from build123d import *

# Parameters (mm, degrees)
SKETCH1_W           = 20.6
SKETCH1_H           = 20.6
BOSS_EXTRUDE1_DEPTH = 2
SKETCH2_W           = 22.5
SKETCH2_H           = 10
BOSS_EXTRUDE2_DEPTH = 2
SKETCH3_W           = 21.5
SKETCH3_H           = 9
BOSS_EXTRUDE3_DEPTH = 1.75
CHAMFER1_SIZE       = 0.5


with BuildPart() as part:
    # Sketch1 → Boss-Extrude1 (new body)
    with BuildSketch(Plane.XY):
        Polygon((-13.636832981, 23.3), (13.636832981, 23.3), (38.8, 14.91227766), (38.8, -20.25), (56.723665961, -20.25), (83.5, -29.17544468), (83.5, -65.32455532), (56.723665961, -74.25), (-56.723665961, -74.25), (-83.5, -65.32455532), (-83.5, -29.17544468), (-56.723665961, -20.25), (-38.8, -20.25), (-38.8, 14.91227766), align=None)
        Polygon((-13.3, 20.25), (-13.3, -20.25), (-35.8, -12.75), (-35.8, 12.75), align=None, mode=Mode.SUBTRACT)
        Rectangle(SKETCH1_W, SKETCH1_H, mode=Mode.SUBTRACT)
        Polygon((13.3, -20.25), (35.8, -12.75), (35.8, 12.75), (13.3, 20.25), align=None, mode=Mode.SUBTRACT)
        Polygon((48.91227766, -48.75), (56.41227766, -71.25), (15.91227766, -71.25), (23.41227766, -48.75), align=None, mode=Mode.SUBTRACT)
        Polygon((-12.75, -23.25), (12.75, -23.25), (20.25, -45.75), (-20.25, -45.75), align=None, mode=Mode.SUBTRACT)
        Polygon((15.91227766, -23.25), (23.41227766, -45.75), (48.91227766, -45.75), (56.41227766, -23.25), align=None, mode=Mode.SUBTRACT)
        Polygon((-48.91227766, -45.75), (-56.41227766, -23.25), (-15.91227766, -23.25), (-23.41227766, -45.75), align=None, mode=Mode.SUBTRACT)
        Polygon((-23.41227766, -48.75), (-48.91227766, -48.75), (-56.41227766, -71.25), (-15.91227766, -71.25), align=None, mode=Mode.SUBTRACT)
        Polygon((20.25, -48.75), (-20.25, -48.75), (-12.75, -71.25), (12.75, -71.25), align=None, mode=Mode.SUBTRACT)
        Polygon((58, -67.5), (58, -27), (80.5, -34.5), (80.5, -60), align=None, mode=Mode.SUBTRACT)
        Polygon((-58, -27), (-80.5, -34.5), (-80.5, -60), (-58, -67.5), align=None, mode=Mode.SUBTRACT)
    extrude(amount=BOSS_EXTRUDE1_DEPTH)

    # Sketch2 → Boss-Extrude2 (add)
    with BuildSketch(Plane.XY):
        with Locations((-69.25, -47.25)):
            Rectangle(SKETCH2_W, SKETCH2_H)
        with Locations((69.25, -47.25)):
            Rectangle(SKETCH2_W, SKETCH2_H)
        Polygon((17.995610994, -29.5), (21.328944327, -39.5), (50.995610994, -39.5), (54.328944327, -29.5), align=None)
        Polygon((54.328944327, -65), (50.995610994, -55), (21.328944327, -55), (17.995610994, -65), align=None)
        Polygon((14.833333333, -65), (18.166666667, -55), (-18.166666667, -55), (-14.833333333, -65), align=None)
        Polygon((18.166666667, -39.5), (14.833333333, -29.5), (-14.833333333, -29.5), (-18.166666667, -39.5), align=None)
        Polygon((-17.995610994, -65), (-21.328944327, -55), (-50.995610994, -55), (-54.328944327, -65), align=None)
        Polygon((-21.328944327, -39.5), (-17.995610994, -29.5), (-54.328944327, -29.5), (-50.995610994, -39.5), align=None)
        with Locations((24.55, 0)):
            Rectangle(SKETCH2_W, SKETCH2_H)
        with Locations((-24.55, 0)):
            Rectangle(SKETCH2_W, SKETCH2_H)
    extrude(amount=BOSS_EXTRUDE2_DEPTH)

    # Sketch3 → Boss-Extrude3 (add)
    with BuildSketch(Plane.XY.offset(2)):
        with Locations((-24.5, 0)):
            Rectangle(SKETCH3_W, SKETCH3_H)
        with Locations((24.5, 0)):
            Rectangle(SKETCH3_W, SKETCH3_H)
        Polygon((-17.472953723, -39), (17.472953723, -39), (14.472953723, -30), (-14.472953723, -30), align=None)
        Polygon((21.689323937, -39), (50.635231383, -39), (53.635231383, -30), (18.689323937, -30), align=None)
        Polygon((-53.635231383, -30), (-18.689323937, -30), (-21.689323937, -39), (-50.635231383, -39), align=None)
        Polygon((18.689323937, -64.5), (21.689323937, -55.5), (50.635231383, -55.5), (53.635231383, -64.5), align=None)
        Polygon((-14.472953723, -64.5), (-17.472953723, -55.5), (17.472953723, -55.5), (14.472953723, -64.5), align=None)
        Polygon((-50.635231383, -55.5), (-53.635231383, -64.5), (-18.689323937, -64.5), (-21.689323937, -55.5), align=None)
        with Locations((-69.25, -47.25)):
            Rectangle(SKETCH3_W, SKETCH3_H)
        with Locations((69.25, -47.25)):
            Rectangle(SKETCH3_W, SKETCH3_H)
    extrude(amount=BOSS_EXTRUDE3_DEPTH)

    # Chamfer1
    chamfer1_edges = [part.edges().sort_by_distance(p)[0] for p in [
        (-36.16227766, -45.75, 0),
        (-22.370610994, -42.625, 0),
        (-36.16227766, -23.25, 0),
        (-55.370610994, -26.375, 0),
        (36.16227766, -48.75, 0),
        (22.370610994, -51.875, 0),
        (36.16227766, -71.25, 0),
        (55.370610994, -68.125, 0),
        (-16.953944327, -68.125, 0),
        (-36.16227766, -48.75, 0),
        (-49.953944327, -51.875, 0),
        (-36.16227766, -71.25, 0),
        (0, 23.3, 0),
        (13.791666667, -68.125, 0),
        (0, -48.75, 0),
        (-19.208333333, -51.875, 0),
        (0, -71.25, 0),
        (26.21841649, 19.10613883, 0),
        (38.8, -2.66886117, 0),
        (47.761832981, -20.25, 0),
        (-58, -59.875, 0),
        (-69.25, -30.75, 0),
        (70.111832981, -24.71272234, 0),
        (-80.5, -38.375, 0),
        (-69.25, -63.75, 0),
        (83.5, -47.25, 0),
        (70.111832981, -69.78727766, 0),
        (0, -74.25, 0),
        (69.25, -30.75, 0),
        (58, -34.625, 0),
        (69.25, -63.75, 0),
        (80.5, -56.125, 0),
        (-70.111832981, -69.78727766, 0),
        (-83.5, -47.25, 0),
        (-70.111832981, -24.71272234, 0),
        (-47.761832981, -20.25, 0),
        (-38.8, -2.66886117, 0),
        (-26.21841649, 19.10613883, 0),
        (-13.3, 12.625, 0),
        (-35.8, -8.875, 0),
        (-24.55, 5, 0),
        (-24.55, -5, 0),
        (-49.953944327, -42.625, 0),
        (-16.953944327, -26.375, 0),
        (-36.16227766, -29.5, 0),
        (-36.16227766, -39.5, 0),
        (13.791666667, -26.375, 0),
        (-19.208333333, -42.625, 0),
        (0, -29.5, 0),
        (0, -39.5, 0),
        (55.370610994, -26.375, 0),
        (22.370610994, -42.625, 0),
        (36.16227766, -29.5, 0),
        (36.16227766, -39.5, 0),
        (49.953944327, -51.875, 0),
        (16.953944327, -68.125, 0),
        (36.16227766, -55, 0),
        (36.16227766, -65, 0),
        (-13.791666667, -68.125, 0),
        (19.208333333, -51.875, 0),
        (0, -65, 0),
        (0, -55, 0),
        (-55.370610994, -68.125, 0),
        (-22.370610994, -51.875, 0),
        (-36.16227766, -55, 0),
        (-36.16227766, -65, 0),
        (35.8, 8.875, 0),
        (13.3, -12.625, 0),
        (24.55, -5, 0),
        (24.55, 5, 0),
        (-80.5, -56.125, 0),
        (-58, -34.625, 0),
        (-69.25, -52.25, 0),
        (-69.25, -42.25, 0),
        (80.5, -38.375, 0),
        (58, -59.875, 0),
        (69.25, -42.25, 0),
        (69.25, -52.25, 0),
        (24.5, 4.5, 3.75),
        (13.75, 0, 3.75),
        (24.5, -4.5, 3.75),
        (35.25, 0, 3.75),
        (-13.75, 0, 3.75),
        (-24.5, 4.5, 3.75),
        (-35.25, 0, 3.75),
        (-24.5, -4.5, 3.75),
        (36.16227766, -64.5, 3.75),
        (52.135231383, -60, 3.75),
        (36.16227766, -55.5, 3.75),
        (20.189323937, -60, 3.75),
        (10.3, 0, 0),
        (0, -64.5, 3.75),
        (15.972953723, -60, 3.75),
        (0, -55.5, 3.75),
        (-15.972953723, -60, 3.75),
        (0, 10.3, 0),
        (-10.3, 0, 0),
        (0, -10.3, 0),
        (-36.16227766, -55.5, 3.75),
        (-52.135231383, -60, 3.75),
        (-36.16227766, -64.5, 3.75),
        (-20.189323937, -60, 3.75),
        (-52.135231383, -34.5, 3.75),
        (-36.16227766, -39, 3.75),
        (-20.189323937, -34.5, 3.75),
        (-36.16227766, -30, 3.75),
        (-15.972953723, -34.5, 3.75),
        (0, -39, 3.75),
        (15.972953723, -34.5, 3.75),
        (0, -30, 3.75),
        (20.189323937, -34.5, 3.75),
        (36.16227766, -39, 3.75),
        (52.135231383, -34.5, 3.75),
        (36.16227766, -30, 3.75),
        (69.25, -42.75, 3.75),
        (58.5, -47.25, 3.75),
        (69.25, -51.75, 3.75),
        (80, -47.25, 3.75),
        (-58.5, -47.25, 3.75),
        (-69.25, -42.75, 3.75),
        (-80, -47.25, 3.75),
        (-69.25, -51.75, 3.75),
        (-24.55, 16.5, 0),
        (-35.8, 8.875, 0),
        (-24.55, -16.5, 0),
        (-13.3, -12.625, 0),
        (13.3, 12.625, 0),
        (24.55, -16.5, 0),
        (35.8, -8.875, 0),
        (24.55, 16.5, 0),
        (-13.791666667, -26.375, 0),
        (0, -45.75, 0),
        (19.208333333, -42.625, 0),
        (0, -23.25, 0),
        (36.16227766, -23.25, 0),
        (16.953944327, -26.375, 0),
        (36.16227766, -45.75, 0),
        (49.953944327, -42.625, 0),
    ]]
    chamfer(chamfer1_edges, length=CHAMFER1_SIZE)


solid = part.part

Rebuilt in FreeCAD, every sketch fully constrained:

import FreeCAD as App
import Part
import Sketcher

V = App.Vector


def edges_at(feature, points):
    """Names of the edges that pass closest to the given points."""
    edges = feature.Shape.Edges
    near = lambda p: min(range(len(edges)), key=lambda i: edges[i].distToShape(Part.Vertex(*p))[0])
    return sorted({f"Edge{near(p) + 1}" for p in points})

doc = App.newDocument("Part")
params = doc.addObject("Spreadsheet::Sheet", "Params")
for row, (alias, value) in enumerate([
    ("sketch1_width", "40.5 mm"),
    ("sketch1_width2", "25.5 mm"),
    ("sketch1_width3", "20.6 mm"),
    ("pad1_length", "2 mm"),
    ("sketch2_height", "10 mm"),
    ("sketch2_width", "22.5 mm"),
    ("pad2_length", "2 mm"),
    ("sketch3_height", "9 mm"),
    ("sketch3_width", "21.5 mm"),
    ("pad3_length", "1.75 mm"),
    ("chamfer_size", "0.5 mm"),
], start=1):
    params.set(f"A{row}", alias)
    params.set(f"B{row}", "=" + value)
    params.setAlias(f"B{row}", alias)

body = doc.addObject("PartDesign::Body", "Body")

sketch1 = doc.addObject("Sketcher::SketchObject", "Sketch")
body.addObject(sketch1)
sketch1.AttachmentSupport = (doc.XY_Plane, [""])
sketch1.MapMode = "FlatFace"
sketch1.addGeometry(Part.LineSegment(V(14, 23, 0), V(-14, 23, 0)), False)
sketch1.addGeometry(Part.LineSegment(V(-14, 23, 0), V(-39, 15, 0)), False)
sketch1.addGeometry(Part.LineSegment(V(-39, 15, 0), V(-39, -20, 0)), False)
sketch1.addGeometry(Part.LineSegment(V(-39, -20, 0), V(-57, -20, 0)), False)
sketch1.addGeometry(Part.LineSegment(V(-57, -20, 0), V(-84, -29, 0)), False)
sketch1.addGeometry(Part.LineSegment(V(-84, -29, 0), V(-84, -65, 0)), False)
sketch1.addGeometry(Part.LineSegment(V(-84, -65, 0), V(-57, -74, 0)), False)
sketch1.addGeometry(Part.LineSegment(V(-57, -74, 0), V(57, -74, 0)), False)
sketch1.addGeometry(Part.LineSegment(V(57, -74, 0), V(84, -65, 0)), False)
sketch1.addGeometry(Part.LineSegment(V(84, -65, 0), V(84, -29, 0)), False)
sketch1.addGeometry(Part.LineSegment(V(84, -29, 0), V(57, -20, 0)), False)
sketch1.addGeometry(Part.LineSegment(V(57, -20, 0), V(39, -20, 0)), False)
sketch1.addGeometry(Part.LineSegment(V(39, -20, 0), V(39, 15, 0)), False)
sketch1.addGeometry(Part.LineSegment(V(39, 15, 0), V(14, 23, 0)), False)
sketch1.addGeometry(Part.LineSegment(V(49, -49, 0), V(56, -71, 0)), False)
sketch1.addGeometry(Part.LineSegment(V(56, -71, 0), V(16, -71, 0)), False)
sketch1.addGeometry(Part.LineSegment(V(16, -71, 0), V(23, -49, 0)), False)
sketch1.addGeometry(Part.LineSegment(V(23, -49, 0), V(49, -49, 0)), False)
sketch1.addGeometry(Part.LineSegment(V(20, -49, 0), V(13, -71, 0)), False)
sketch1.addGeometry(Part.LineSegment(V(13, -71, 0), V(-13, -71, 0)), False)
sketch1.addGeometry(Part.LineSegment(V(-13, -71, 0), V(-20, -49, 0)), False)
sketch1.addGeometry(Part.LineSegment(V(-20, -49, 0), V(20, -49, 0)), False)
sketch1.addGeometry(Part.LineSegment(V(58, -68, 0), V(58, -27, 0)), False)
sketch1.addGeometry(Part.LineSegment(V(58, -27, 0), V(80, -34, 0)), False)
sketch1.addGeometry(Part.LineSegment(V(80, -34, 0), V(80, -60, 0)), False)
sketch1.addGeometry(Part.LineSegment(V(80, -60, 0), V(58, -68, 0)), False)
sketch1.addGeometry(Part.LineSegment(V(16, -23, 0), V(56, -23, 0)), False)
sketch1.addGeometry(Part.LineSegment(V(56, -23, 0), V(49, -46, 0)), False)
sketch1.addGeometry(Part.LineSegment(V(49, -46, 0), V(23, -46, 0)), False)
sketch1.addGeometry(Part.LineSegment(V(23, -46, 0), V(16, -23, 0)), False)
sketch1.addGeometry(Part.LineSegment(V(-13, -23, 0), V(13, -23, 0)), False)
sketch1.addGeometry(Part.LineSegment(V(13, -23, 0), V(20, -46, 0)), False)
sketch1.addGeometry(Part.LineSegment(V(20, -46, 0), V(-20, -46, 0)), False)
sketch1.addGeometry(Part.LineSegment(V(-20, -46, 0), V(-13, -23, 0)), False)
sketch1.addGeometry(Part.LineSegment(V(-23, -49, 0), V(-16, -71, 0)), False)
sketch1.addGeometry(Part.LineSegment(V(-16, -71, 0), V(-56, -71, 0)), False)
sketch1.addGeometry(Part.LineSegment(V(-56, -71, 0), V(-49, -49, 0)), False)
sketch1.addGeometry(Part.LineSegment(V(-49, -49, 0), V(-23, -49, 0)), False)
sketch1.addGeometry(Part.LineSegment(V(-49, -46, 0), V(-56, -23, 0)), False)
sketch1.addGeometry(Part.LineSegment(V(-56, -23, 0), V(-16, -23, 0)), False)
sketch1.addGeometry(Part.LineSegment(V(-16, -23, 0), V(-23, -46, 0)), False)
sketch1.addGeometry(Part.LineSegment(V(-23, -46, 0), V(-49, -46, 0)), False)
sketch1.addGeometry(Part.LineSegment(V(-58, -27, 0), V(-58, -68, 0)), False)
sketch1.addGeometry(Part.LineSegment(V(-58, -68, 0), V(-80, -60, 0)), False)
sketch1.addGeometry(Part.LineSegment(V(-80, -60, 0), V(-80, -34, 0)), False)
sketch1.addGeometry(Part.LineSegment(V(-80, -34, 0), V(-58, -27, 0)), False)
sketch1.addGeometry(Part.LineSegment(V(13, -20, 0), V(13, 20, 0)), False)
sketch1.addGeometry(Part.LineSegment(V(13, 20, 0), V(36, 13, 0)), False)
sketch1.addGeometry(Part.LineSegment(V(36, 13, 0), V(36, -13, 0)), False)
sketch1.addGeometry(Part.LineSegment(V(36, -13, 0), V(13, -20, 0)), False)
sketch1.addGeometry(Part.LineSegment(V(-10, -10, 0), V(-10, 10, 0)), False)
sketch1.addGeometry(Part.LineSegment(V(-10, 10, 0), V(10, 10, 0)), False)
sketch1.addGeometry(Part.LineSegment(V(10, 10, 0), V(10, -10, 0)), False)
sketch1.addGeometry(Part.LineSegment(V(10, -10, 0), V(-10, -10, 0)), False)
sketch1.addGeometry(Part.LineSegment(V(-13, 20, 0), V(-13, -20, 0)), False)
sketch1.addGeometry(Part.LineSegment(V(-13, -20, 0), V(-36, -13, 0)), False)
sketch1.addGeometry(Part.LineSegment(V(-36, -13, 0), V(-36, 13, 0)), False)
sketch1.addGeometry(Part.LineSegment(V(-36, 13, 0), V(-13, 20, 0)), False)
sketch1.addConstraint(Sketcher.Constraint("Coincident", 0, 2, 1, 1))
sketch1.addConstraint(Sketcher.Constraint("Coincident", 1, 2, 2, 1))
sketch1.addConstraint(Sketcher.Constraint("Coincident", 2, 2, 3, 1))
sketch1.addConstraint(Sketcher.Constraint("Coincident", 3, 2, 4, 1))
sketch1.addConstraint(Sketcher.Constraint("Coincident", 4, 2, 5, 1))
sketch1.addConstraint(Sketcher.Constraint("Coincident", 5, 2, 6, 1))
sketch1.addConstraint(Sketcher.Constraint("Coincident", 6, 2, 7, 1))
sketch1.addConstraint(Sketcher.Constraint("Coincident", 7, 2, 8, 1))
sketch1.addConstraint(Sketcher.Constraint("Coincident", 8, 2, 9, 1))
sketch1.addConstraint(Sketcher.Constraint("Coincident", 9, 2, 10, 1))
sketch1.addConstraint(Sketcher.Constraint("Coincident", 10, 2, 11, 1))
sketch1.addConstraint(Sketcher.Constraint("Coincident", 11, 2, 12, 1))
sketch1.addConstraint(Sketcher.Constraint("Coincident", 12, 2, 13, 1))
sketch1.addConstraint(Sketcher.Constraint("Coincident", 13, 2, 0, 1))
sketch1.addConstraint(Sketcher.Constraint("Coincident", 14, 2, 15, 1))
sketch1.addConstraint(Sketcher.Constraint("Coincident", 15, 2, 16, 1))
sketch1.addConstraint(Sketcher.Constraint("Coincident", 16, 2, 17, 1))
sketch1.addConstraint(Sketcher.Constraint("Coincident", 17, 2, 14, 1))
sketch1.addConstraint(Sketcher.Constraint("Coincident", 18, 2, 19, 1))
sketch1.addConstraint(Sketcher.Constraint("Coincident", 19, 2, 20, 1))
sketch1.addConstraint(Sketcher.Constraint("Coincident", 20, 2, 21, 1))
sketch1.addConstraint(Sketcher.Constraint("Coincident", 21, 2, 18, 1))
sketch1.addConstraint(Sketcher.Constraint("Coincident", 22, 2, 23, 1))
sketch1.addConstraint(Sketcher.Constraint("Coincident", 23, 2, 24, 1))
sketch1.addConstraint(Sketcher.Constraint("Coincident", 24, 2, 25, 1))
sketch1.addConstraint(Sketcher.Constraint("Coincident", 25, 2, 22, 1))
sketch1.addConstraint(Sketcher.Constraint("Coincident", 26, 2, 27, 1))
sketch1.addConstraint(Sketcher.Constraint("Coincident", 27, 2, 28, 1))
sketch1.addConstraint(Sketcher.Constraint("Coincident", 28, 2, 29, 1))
sketch1.addConstraint(Sketcher.Constraint("Coincident", 29, 2, 26, 1))
sketch1.addConstraint(Sketcher.Constraint("Coincident", 30, 2, 31, 1))
sketch1.addConstraint(Sketcher.Constraint("Coincident", 31, 2, 32, 1))
sketch1.addConstraint(Sketcher.Constraint("Coincident", 32, 2, 33, 1))
sketch1.addConstraint(Sketcher.Constraint("Coincident", 33, 2, 30, 1))
sketch1.addConstraint(Sketcher.Constraint("Coincident", 34, 2, 35, 1))
sketch1.addConstraint(Sketcher.Constraint("Coincident", 35, 2, 36, 1))
sketch1.addConstraint(Sketcher.Constraint("Coincident", 36, 2, 37, 1))
sketch1.addConstraint(Sketcher.Constraint("Coincident", 37, 2, 34, 1))
sketch1.addConstraint(Sketcher.Constraint("Coincident", 38, 2, 39, 1))
sketch1.addConstraint(Sketcher.Constraint("Coincident", 39, 2, 40, 1))
sketch1.addConstraint(Sketcher.Constraint("Coincident", 40, 2, 41, 1))
sketch1.addConstraint(Sketcher.Constraint("Coincident", 41, 2, 38, 1))
sketch1.addConstraint(Sketcher.Constraint("Coincident", 42, 2, 43, 1))
sketch1.addConstraint(Sketcher.Constraint("Coincident", 43, 2, 44, 1))
sketch1.addConstraint(Sketcher.Constraint("Coincident", 44, 2, 45, 1))
sketch1.addConstraint(Sketcher.Constraint("Coincident", 45, 2, 42, 1))
sketch1.addConstraint(Sketcher.Constraint("Coincident", 46, 2, 47, 1))
sketch1.addConstraint(Sketcher.Constraint("Coincident", 47, 2, 48, 1))
sketch1.addConstraint(Sketcher.Constraint("Coincident", 48, 2, 49, 1))
sketch1.addConstraint(Sketcher.Constraint("Coincident", 49, 2, 46, 1))
sketch1.addConstraint(Sketcher.Constraint("Coincident", 50, 2, 51, 1))
sketch1.addConstraint(Sketcher.Constraint("Coincident", 51, 2, 52, 1))
sketch1.addConstraint(Sketcher.Constraint("Coincident", 52, 2, 53, 1))
sketch1.addConstraint(Sketcher.Constraint("Coincident", 53, 2, 50, 1))
sketch1.addConstraint(Sketcher.Constraint("Coincident", 54, 2, 55, 1))
sketch1.addConstraint(Sketcher.Constraint("Coincident", 55, 2, 56, 1))
sketch1.addConstraint(Sketcher.Constraint("Coincident", 56, 2, 57, 1))
sketch1.addConstraint(Sketcher.Constraint("Coincident", 57, 2, 54, 1))
sketch1.addConstraint(Sketcher.Constraint("Horizontal", 0))
sketch1.addConstraint(Sketcher.Constraint("Vertical", 2))
sketch1.addConstraint(Sketcher.Constraint("Horizontal", 3))
sketch1.addConstraint(Sketcher.Constraint("Vertical", 5))
sketch1.addConstraint(Sketcher.Constraint("Horizontal", 7))
sketch1.addConstraint(Sketcher.Constraint("Vertical", 9))
sketch1.addConstraint(Sketcher.Constraint("Horizontal", 11))
sketch1.addConstraint(Sketcher.Constraint("Vertical", 12))
sketch1.addConstraint(Sketcher.Constraint("Horizontal", 15))
sketch1.addConstraint(Sketcher.Constraint("Horizontal", 17))
sketch1.addConstraint(Sketcher.Constraint("Horizontal", 19))
sketch1.addConstraint(Sketcher.Constraint("Horizontal", 21))
sketch1.addConstraint(Sketcher.Constraint("Vertical", 22))
sketch1.addConstraint(Sketcher.Constraint("Vertical", 24))
sketch1.addConstraint(Sketcher.Constraint("Horizontal", 26))
sketch1.addConstraint(Sketcher.Constraint("Horizontal", 28))
sketch1.addConstraint(Sketcher.Constraint("Horizontal", 30))
sketch1.addConstraint(Sketcher.Constraint("Horizontal", 32))
sketch1.addConstraint(Sketcher.Constraint("Horizontal", 35))
sketch1.addConstraint(Sketcher.Constraint("Horizontal", 37))
sketch1.addConstraint(Sketcher.Constraint("Horizontal", 39))
sketch1.addConstraint(Sketcher.Constraint("Horizontal", 41))
sketch1.addConstraint(Sketcher.Constraint("Vertical", 42))
sketch1.addConstraint(Sketcher.Constraint("Vertical", 44))
sketch1.addConstraint(Sketcher.Constraint("Vertical", 46))
sketch1.addConstraint(Sketcher.Constraint("Vertical", 48))
sketch1.addConstraint(Sketcher.Constraint("Vertical", 50))
sketch1.addConstraint(Sketcher.Constraint("Horizontal", 51))
sketch1.addConstraint(Sketcher.Constraint("Vertical", 52))
sketch1.addConstraint(Sketcher.Constraint("Horizontal", 53))
sketch1.addConstraint(Sketcher.Constraint("Vertical", 54))
sketch1.addConstraint(Sketcher.Constraint("Vertical", 56))
sketch1.addConstraint(Sketcher.Constraint("Symmetric", 50, 2, 52, 2, -1, 1))
sketch1.addConstraint(Sketcher.Constraint("Symmetric", 46, 2, 54, 2, -1, 1))
sketch1.addConstraint(Sketcher.Constraint("Symmetric", 47, 2, 55, 2, -1, 1))
sketch1.addConstraint(Sketcher.Constraint("Symmetric", 5, 2, 8, 2, -2))
sketch1.addConstraint(Sketcher.Constraint("Symmetric", 3, 2, 10, 2, -2))
sketch1.addConstraint(Sketcher.Constraint("Symmetric", 1, 2, 12, 2, -2))
sketch1.addConstraint(Sketcher.Constraint("Symmetric", 15, 2, 34, 2, -2))
sketch1.addConstraint(Sketcher.Constraint("Symmetric", 17, 2, 36, 2, -2))
sketch1.addConstraint(Sketcher.Constraint("Symmetric", 26, 2, 38, 2, -2))
sketch1.addConstraint(Sketcher.Constraint("Symmetric", 28, 2, 40, 2, -2))
sketch1.addConstraint(Sketcher.Constraint("Symmetric", 25, 2, 42, 2, -2))
sketch1.addConstraint(Sketcher.Constraint("Symmetric", 24, 2, 43, 2, -2))
sketch1.addConstraint(Sketcher.Constraint("Parallel", 1, 4))
sketch1.addConstraint(Sketcher.Constraint("Parallel", 4, 8))
sketch1.addConstraint(Sketcher.Constraint("Parallel", 6, 10))
sketch1.addConstraint(Sketcher.Constraint("Parallel", 10, 13))
sketch1.addConstraint(Sketcher.Constraint("Perpendicular", 8, 14))
sketch1.addConstraint(Sketcher.Constraint("Perpendicular", 13, 16))
sketch1.addConstraint(Sketcher.Constraint("Parallel", 16, 18))
sketch1.addConstraint(Sketcher.Constraint("Parallel", 14, 20))
sketch1.addConstraint(Sketcher.Constraint("Perpendicular", 18, 23))
sketch1.addConstraint(Sketcher.Constraint("Perpendicular", 20, 25))
sketch1.addConstraint(Sketcher.Constraint("Perpendicular", 23, 27))
sketch1.addConstraint(Sketcher.Constraint("Perpendicular", 25, 29))
sketch1.addConstraint(Sketcher.Constraint("Parallel", 29, 31))
sketch1.addConstraint(Sketcher.Constraint("Parallel", 27, 33))
sketch1.addConstraint(Sketcher.Constraint("Parallel", 31, 34))
sketch1.addConstraint(Sketcher.Constraint("Parallel", 33, 36))
sketch1.addConstraint(Sketcher.Constraint("Parallel", 34, 38))
sketch1.addConstraint(Sketcher.Constraint("Parallel", 36, 40))
sketch1.addConstraint(Sketcher.Constraint("Perpendicular", 40, 43))
sketch1.addConstraint(Sketcher.Constraint("Perpendicular", 38, 45))
sketch1.addConstraint(Sketcher.Constraint("Parallel", 43, 47))
sketch1.addConstraint(Sketcher.Constraint("Parallel", 45, 49))
sketch1.addConstraint(Sketcher.Constraint("Parallel", 49, 57))
sketch1.addConstraint(Sketcher.Constraint("Horizontal", 15, 2, 18, 2))
sketch1.addConstraint(Sketcher.Constraint("Horizontal", 17, 2, 20, 2))
sketch1.addConstraint(Sketcher.Constraint("Horizontal", 29, 2, 30, 2))
sketch1.addConstraint(Sketcher.Constraint("Horizontal", 28, 2, 31, 2))
sketch1.addConstraint(Sketcher.Constraint("Horizontal", 23, 2, 44, 2))
sketch1.addConstraint(Sketcher.Constraint("Horizontal", 11, 2, 49, 2))
sketch1.addConstraint(Sketcher.Constraint("Horizontal", 49, 2, 54, 2))
sketch1.addConstraint(Sketcher.Constraint("Horizontal", 47, 2, 56, 2))
sketch1.addConstraint(Sketcher.Constraint("Vertical", 3, 2, 6, 2))
sketch1.addConstraint(Sketcher.Constraint("Vertical", 14, 2, 26, 2))
sketch1.addConstraint(Sketcher.Constraint("Vertical", 17, 2, 27, 2))
sketch1.addConstraint(Sketcher.Constraint("Vertical", 16, 2, 28, 2))
sketch1.addConstraint(Sketcher.Constraint("Vertical", 18, 2, 30, 2))
sketch1.addConstraint(Sketcher.Constraint("Vertical", 20, 2, 32, 2))
sketch1.addConstraint(Sketcher.Constraint("Equal", 17, 19))
sketch1.addConstraint(Sketcher.Constraint("Equal", 39, 22))
sketch1.addConstraint(Sketcher.Constraint("Equal", 41, 24))
sketch1.addConstraint(Sketcher.Constraint("Equal", 42, 46))
sketch1.addConstraint(Sketcher.Constraint("Equal", 44, 48))
sketch1.addConstraint(Sketcher.Constraint("Equal", 53, 50))
sketch1.addConstraint(Sketcher.Constraint("DistanceX", 15, 2, 15, 1, 40.5))
sketch1.addConstraint(Sketcher.Constraint("DistanceX", 17, 1, 17, 2, 25.5))
sketch1.addConstraint(Sketcher.Constraint("DistanceX", 51, 1, 51, 2, 20.6))
sketch1.addConstraint(Sketcher.Constraint("DistanceX", -1, 1, 22, 2, 58.0))
sketch1.addConstraint(Sketcher.Constraint("DistanceY", 22, 2, -1, 1, 27.0))
sketch1.addConstraint(Sketcher.Constraint("DistanceY", 6, 2, 3, 2, 54.0))
sketch1.addConstraint(Sketcher.Constraint("DistanceY", 7, 2, 14, 2, 3.0))
sketch1.addConstraint(Sketcher.Constraint("DistanceX", 23, 2, 9, 2, 3.0))
sketch1.addConstraint(Sketcher.Constraint("DistanceY", 26, 2, 10, 2, 3.0))
sketch1.addConstraint(Sketcher.Constraint("DistanceY", 17, 2, 27, 2, 3.0))
sketch1.addConstraint(Sketcher.Constraint("DistanceX", 47, 2, 12, 2, 3.0))
sketch1.addConstraint(Sketcher.Constraint("DistanceY", 50, 2, 0, 2, 13.0))
sketch1.addConstraint(Sketcher.Constraint("DistanceX", 51, 2, 46, 2, 3.0))
sketch1.addConstraint(Sketcher.Constraint("DistanceX", -1, 1, 18, 2, 12.75))
sketch1.addConstraint(Sketcher.Constraint("DistanceX", 7, 1, 7, 2, 113.447332))
sketch1.addConstraint(Sketcher.Constraint("DistanceX", 0, 2, 7, 2, 70.360499))
sketch1.addConstraint(Sketcher.Constraint("DistanceX", 14, 2, 7, 2, 0.311388))
sketch1.setExpression("Constraints[145]", "Params.sketch1_width")
sketch1.setExpression("Constraints[146]", "Params.sketch1_width2")
sketch1.setExpression("Constraints[147]", "Params.sketch1_width3")
pad1 = doc.addObject("PartDesign::Pad", "Pad")
body.addObject(pad1)
pad1.Profile = sketch1
pad1.setExpression("Length", "Params.pad1_length")

sketch2 = doc.addObject("Sketcher::SketchObject", "Sketch001")
body.addObject(sketch2)
sketch2.AttachmentSupport = (doc.XY_Plane, [""])
sketch2.MapMode = "FlatFace"
sketch2.addGeometry(Part.LineSegment(V(-80, -42, 0), V(-80, -52, 0)), False)
sketch2.addGeometry(Part.LineSegment(V(-80, -52, 0), V(-58, -52, 0)), False)
sketch2.addGeometry(Part.LineSegment(V(-58, -52, 0), V(-58, -42, 0)), False)
sketch2.addGeometry(Part.LineSegment(V(-58, -42, 0), V(-80, -42, 0)), False)
sketch2.addGeometry(Part.LineSegment(V(58, -42, 0), V(58, -52, 0)), False)
sketch2.addGeometry(Part.LineSegment(V(58, -52, 0), V(80, -52, 0)), False)
sketch2.addGeometry(Part.LineSegment(V(80, -52, 0), V(80, -42, 0)), False)
sketch2.addGeometry(Part.LineSegment(V(80, -42, 0), V(58, -42, 0)), False)
sketch2.addGeometry(Part.LineSegment(V(18, -30, 0), V(21, -40, 0)), False)
sketch2.addGeometry(Part.LineSegment(V(21, -40, 0), V(51, -40, 0)), False)
sketch2.addGeometry(Part.LineSegment(V(51, -40, 0), V(54, -30, 0)), False)
sketch2.addGeometry(Part.LineSegment(V(54, -30, 0), V(18, -30, 0)), False)
sketch2.addGeometry(Part.LineSegment(V(54, -65, 0), V(51, -55, 0)), False)
sketch2.addGeometry(Part.LineSegment(V(51, -55, 0), V(21, -55, 0)), False)
sketch2.addGeometry(Part.LineSegment(V(21, -55, 0), V(18, -65, 0)), False)
sketch2.addGeometry(Part.LineSegment(V(18, -65, 0), V(54, -65, 0)), False)
sketch2.addGeometry(Part.LineSegment(V(15, -65, 0), V(18, -55, 0)), False)
sketch2.addGeometry(Part.LineSegment(V(18, -55, 0), V(-18, -55, 0)), False)
sketch2.addGeometry(Part.LineSegment(V(-18, -55, 0), V(-15, -65, 0)), False)
sketch2.addGeometry(Part.LineSegment(V(-15, -65, 0), V(15, -65, 0)), False)
sketch2.addGeometry(Part.LineSegment(V(18, -40, 0), V(15, -30, 0)), False)
sketch2.addGeometry(Part.LineSegment(V(15, -30, 0), V(-15, -30, 0)), False)
sketch2.addGeometry(Part.LineSegment(V(-15, -30, 0), V(-18, -40, 0)), False)
sketch2.addGeometry(Part.LineSegment(V(-18, -40, 0), V(18, -40, 0)), False)
sketch2.addGeometry(Part.LineSegment(V(-18, -65, 0), V(-21, -55, 0)), False)
sketch2.addGeometry(Part.LineSegment(V(-21, -55, 0), V(-51, -55, 0)), False)
sketch2.addGeometry(Part.LineSegment(V(-51, -55, 0), V(-54, -65, 0)), False)
sketch2.addGeometry(Part.LineSegment(V(-54, -65, 0), V(-18, -65, 0)), False)
sketch2.addGeometry(Part.LineSegment(V(-21, -40, 0), V(-18, -30, 0)), False)
sketch2.addGeometry(Part.LineSegment(V(-18, -30, 0), V(-54, -30, 0)), False)
sketch2.addGeometry(Part.LineSegment(V(-54, -30, 0), V(-51, -40, 0)), False)
sketch2.addGeometry(Part.LineSegment(V(-51, -40, 0), V(-21, -40, 0)), False)
sketch2.addGeometry(Part.LineSegment(V(13, 5, 0), V(13, -5, 0)), False)
sketch2.addGeometry(Part.LineSegment(V(13, -5, 0), V(36, -5, 0)), False)
sketch2.addGeometry(Part.LineSegment(V(36, -5, 0), V(36, 5, 0)), False)
sketch2.addGeometry(Part.LineSegment(V(36, 5, 0), V(13, 5, 0)), False)
sketch2.addGeometry(Part.LineSegment(V(-36, 5, 0), V(-36, -5, 0)), False)
sketch2.addGeometry(Part.LineSegment(V(-36, -5, 0), V(-13, -5, 0)), False)
sketch2.addGeometry(Part.LineSegment(V(-13, -5, 0), V(-13, 5, 0)), False)
sketch2.addGeometry(Part.LineSegment(V(-13, 5, 0), V(-36, 5, 0)), False)
sketch2.addConstraint(Sketcher.Constraint("Coincident", 0, 2, 1, 1))
sketch2.addConstraint(Sketcher.Constraint("Coincident", 1, 2, 2, 1))
sketch2.addConstraint(Sketcher.Constraint("Coincident", 2, 2, 3, 1))
sketch2.addConstraint(Sketcher.Constraint("Coincident", 3, 2, 0, 1))
sketch2.addConstraint(Sketcher.Constraint("Coincident", 4, 2, 5, 1))
sketch2.addConstraint(Sketcher.Constraint("Coincident", 5, 2, 6, 1))
sketch2.addConstraint(Sketcher.Constraint("Coincident", 6, 2, 7, 1))
sketch2.addConstraint(Sketcher.Constraint("Coincident", 7, 2, 4, 1))
sketch2.addConstraint(Sketcher.Constraint("Coincident", 8, 2, 9, 1))
sketch2.addConstraint(Sketcher.Constraint("Coincident", 9, 2, 10, 1))
sketch2.addConstraint(Sketcher.Constraint("Coincident", 10, 2, 11, 1))
sketch2.addConstraint(Sketcher.Constraint("Coincident", 11, 2, 8, 1))
sketch2.addConstraint(Sketcher.Constraint("Coincident", 12, 2, 13, 1))
sketch2.addConstraint(Sketcher.Constraint("Coincident", 13, 2, 14, 1))
sketch2.addConstraint(Sketcher.Constraint("Coincident", 14, 2, 15, 1))
sketch2.addConstraint(Sketcher.Constraint("Coincident", 15, 2, 12, 1))
sketch2.addConstraint(Sketcher.Constraint("Coincident", 16, 2, 17, 1))
sketch2.addConstraint(Sketcher.Constraint("Coincident", 17, 2, 18, 1))
sketch2.addConstraint(Sketcher.Constraint("Coincident", 18, 2, 19, 1))
sketch2.addConstraint(Sketcher.Constraint("Coincident", 19, 2, 16, 1))
sketch2.addConstraint(Sketcher.Constraint("Coincident", 20, 2, 21, 1))
sketch2.addConstraint(Sketcher.Constraint("Coincident", 21, 2, 22, 1))
sketch2.addConstraint(Sketcher.Constraint("Coincident", 22, 2, 23, 1))
sketch2.addConstraint(Sketcher.Constraint("Coincident", 23, 2, 20, 1))
sketch2.addConstraint(Sketcher.Constraint("Coincident", 24, 2, 25, 1))
sketch2.addConstraint(Sketcher.Constraint("Coincident", 25, 2, 26, 1))
sketch2.addConstraint(Sketcher.Constraint("Coincident", 26, 2, 27, 1))
sketch2.addConstraint(Sketcher.Constraint("Coincident", 27, 2, 24, 1))
sketch2.addConstraint(Sketcher.Constraint("Coincident", 28, 2, 29, 1))
sketch2.addConstraint(Sketcher.Constraint("Coincident", 29, 2, 30, 1))
sketch2.addConstraint(Sketcher.Constraint("Coincident", 30, 2, 31, 1))
sketch2.addConstraint(Sketcher.Constraint("Coincident", 31, 2, 28, 1))
sketch2.addConstraint(Sketcher.Constraint("Coincident", 32, 2, 33, 1))
sketch2.addConstraint(Sketcher.Constraint("Coincident", 33, 2, 34, 1))
sketch2.addConstraint(Sketcher.Constraint("Coincident", 34, 2, 35, 1))
sketch2.addConstraint(Sketcher.Constraint("Coincident", 35, 2, 32, 1))
sketch2.addConstraint(Sketcher.Constraint("Coincident", 36, 2, 37, 1))
sketch2.addConstraint(Sketcher.Constraint("Coincident", 37, 2, 38, 1))
sketch2.addConstraint(Sketcher.Constraint("Coincident", 38, 2, 39, 1))
sketch2.addConstraint(Sketcher.Constraint("Coincident", 39, 2, 36, 1))
sketch2.addConstraint(Sketcher.Constraint("Vertical", 0))
sketch2.addConstraint(Sketcher.Constraint("Horizontal", 1))
sketch2.addConstraint(Sketcher.Constraint("Vertical", 2))
sketch2.addConstraint(Sketcher.Constraint("Horizontal", 3))
sketch2.addConstraint(Sketcher.Constraint("Vertical", 4))
sketch2.addConstraint(Sketcher.Constraint("Horizontal", 5))
sketch2.addConstraint(Sketcher.Constraint("Vertical", 6))
sketch2.addConstraint(Sketcher.Constraint("Horizontal", 7))
sketch2.addConstraint(Sketcher.Constraint("Horizontal", 9))
sketch2.addConstraint(Sketcher.Constraint("Horizontal", 11))
sketch2.addConstraint(Sketcher.Constraint("Horizontal", 13))
sketch2.addConstraint(Sketcher.Constraint("Horizontal", 15))
sketch2.addConstraint(Sketcher.Constraint("Horizontal", 17))
sketch2.addConstraint(Sketcher.Constraint("Horizontal", 19))
sketch2.addConstraint(Sketcher.Constraint("Horizontal", 21))
sketch2.addConstraint(Sketcher.Constraint("Horizontal", 23))
sketch2.addConstraint(Sketcher.Constraint("Horizontal", 25))
sketch2.addConstraint(Sketcher.Constraint("Horizontal", 27))
sketch2.addConstraint(Sketcher.Constraint("Horizontal", 29))
sketch2.addConstraint(Sketcher.Constraint("Horizontal", 31))
sketch2.addConstraint(Sketcher.Constraint("Vertical", 32))
sketch2.addConstraint(Sketcher.Constraint("Horizontal", 33))
sketch2.addConstraint(Sketcher.Constraint("Vertical", 34))
sketch2.addConstraint(Sketcher.Constraint("Horizontal", 35))
sketch2.addConstraint(Sketcher.Constraint("Vertical", 36))
sketch2.addConstraint(Sketcher.Constraint("Horizontal", 37))
sketch2.addConstraint(Sketcher.Constraint("Vertical", 38))
sketch2.addConstraint(Sketcher.Constraint("Horizontal", 39))
sketch2.addConstraint(Sketcher.Constraint("Symmetric", 34, 2, 36, 2, -1, 1))
sketch2.addConstraint(Sketcher.Constraint("Symmetric", 32, 2, 38, 2, -1, 1))
sketch2.addConstraint(Sketcher.Constraint("Symmetric", 1, 2, 4, 2, -2))
sketch2.addConstraint(Sketcher.Constraint("Symmetric", 3, 2, 6, 2, -2))
sketch2.addConstraint(Sketcher.Constraint("Symmetric", 13, 2, 24, 2, -2))
sketch2.addConstraint(Sketcher.Constraint("Symmetric", 15, 2, 26, 2, -2))
sketch2.addConstraint(Sketcher.Constraint("Symmetric", 11, 2, 28, 2, -2))
sketch2.addConstraint(Sketcher.Constraint("Symmetric", 9, 2, 30, 2, -2))
sketch2.addConstraint(Sketcher.Constraint("Parallel", 8, 12))
sketch2.addConstraint(Sketcher.Constraint("Parallel", 10, 14))
sketch2.addConstraint(Sketcher.Constraint("Parallel", 14, 16))
sketch2.addConstraint(Sketcher.Constraint("Parallel", 12, 18))
sketch2.addConstraint(Sketcher.Constraint("Parallel", 18, 20))
sketch2.addConstraint(Sketcher.Constraint("Parallel", 16, 22))
sketch2.addConstraint(Sketcher.Constraint("Parallel", 20, 24))
sketch2.addConstraint(Sketcher.Constraint("Parallel", 22, 26))
sketch2.addConstraint(Sketcher.Constraint("Parallel", 26, 28))
sketch2.addConstraint(Sketcher.Constraint("Parallel", 24, 30))
sketch2.addConstraint(Sketcher.Constraint("Horizontal", 13, 2, 16, 2))
sketch2.addConstraint(Sketcher.Constraint("Horizontal", 15, 2, 18, 2))
sketch2.addConstraint(Sketcher.Constraint("Horizontal", 11, 2, 20, 2))
sketch2.addConstraint(Sketcher.Constraint("Horizontal", 9, 2, 22, 2))
sketch2.addConstraint(Sketcher.Constraint("Horizontal", 33, 2, 36, 2))
sketch2.addConstraint(Sketcher.Constraint("Vertical", 9, 2, 12, 2))
sketch2.addConstraint(Sketcher.Constraint("Vertical", 8, 2, 13, 2))
sketch2.addConstraint(Sketcher.Constraint("Vertical", 11, 2, 14, 2))
sketch2.addConstraint(Sketcher.Constraint("Vertical", 10, 2, 15, 2))
sketch2.addConstraint(Sketcher.Constraint("Vertical", 19, 2, 20, 2))
sketch2.addConstraint(Sketcher.Constraint("Vertical", 18, 2, 21, 2))
sketch2.addConstraint(Sketcher.Constraint("Equal", 15, 17))
sketch2.addConstraint(Sketcher.Constraint("Equal", 7, 33))
sketch2.addConstraint(Sketcher.Constraint("Equal", 6, 32))
sketch2.addConstraint(Sketcher.Constraint("DistanceY", 0, 2, 0, 1, 10.0))
sketch2.addConstraint(Sketcher.Constraint("DistanceX", 1, 1, 1, 2, 22.5))
sketch2.addConstraint(Sketcher.Constraint("DistanceX", 1, 2, -1, 1, 58.0))
sketch2.addConstraint(Sketcher.Constraint("DistanceY", 12, 2, -1, 1, 55.0))
sketch2.addConstraint(Sketcher.Constraint("DistanceY", 14, 2, -1, 1, 65.0))
sketch2.addConstraint(Sketcher.Constraint("DistanceX", 8, 2, 10, 2, 33.0))
sketch2.addConstraint(Sketcher.Constraint("DistanceY", 8, 2, -1, 1, 39.5))
sketch2.addConstraint(Sketcher.Constraint("DistanceX", -1, 1, 32, 2, 13.3))
sketch2.addConstraint(Sketcher.Constraint("DistanceY", 0, 2, -1, 1, 52.25))
sketch2.addConstraint(Sketcher.Constraint("DistanceX", 9, 1, 9, 2, 29.666667))
sketch2.addConstraint(Sketcher.Constraint("DistanceX", -1, 1, 9, 2, 50.995611))
sketch2.addConstraint(Sketcher.Constraint("DistanceX", 17, 2, 13, 2, 39.495611))
sketch2.setExpression("Constraints[100]", "Params.sketch2_height")
sketch2.setExpression("Constraints[101]", "Params.sketch2_width")
pad2 = doc.addObject("PartDesign::Pad", "Pad001")
body.addObject(pad2)
pad2.Profile = sketch2
pad2.setExpression("Length", "Params.pad2_length")

sketch3 = doc.addObject("Sketcher::SketchObject", "Sketch002")
body.addObject(sketch3)
sketch3.AttachmentSupport = (doc.XY_Plane, [""])
sketch3.MapMode = "FlatFace"
sketch3.AttachmentOffset = App.Placement(V(0, 0, 2), App.Rotation())
sketch3.addGeometry(Part.LineSegment(V(-35, 4, 0), V(-35, -4, 0)), False)
sketch3.addGeometry(Part.LineSegment(V(-35, -4, 0), V(-14, -4, 0)), False)
sketch3.addGeometry(Part.LineSegment(V(-14, -4, 0), V(-14, 4, 0)), False)
sketch3.addGeometry(Part.LineSegment(V(-14, 4, 0), V(-35, 4, 0)), False)
sketch3.addGeometry(Part.LineSegment(V(14, 4, 0), V(14, -4, 0)), False)
sketch3.addGeometry(Part.LineSegment(V(14, -4, 0), V(35, -4, 0)), False)
sketch3.addGeometry(Part.LineSegment(V(35, -4, 0), V(35, 4, 0)), False)
sketch3.addGeometry(Part.LineSegment(V(35, 4, 0), V(14, 4, 0)), False)
sketch3.addGeometry(Part.LineSegment(V(-17, -39, 0), V(17, -39, 0)), False)
sketch3.addGeometry(Part.LineSegment(V(17, -39, 0), V(14, -30, 0)), False)
sketch3.addGeometry(Part.LineSegment(V(14, -30, 0), V(-14, -30, 0)), False)
sketch3.addGeometry(Part.LineSegment(V(-14, -30, 0), V(-17, -39, 0)), False)
sketch3.addGeometry(Part.LineSegment(V(22, -39, 0), V(51, -39, 0)), False)
sketch3.addGeometry(Part.LineSegment(V(51, -39, 0), V(54, -30, 0)), False)
sketch3.addGeometry(Part.LineSegment(V(54, -30, 0), V(19, -30, 0)), False)
sketch3.addGeometry(Part.LineSegment(V(19, -30, 0), V(22, -39, 0)), False)
sketch3.addGeometry(Part.LineSegment(V(-19, -30, 0), V(-54, -30, 0)), False)
sketch3.addGeometry(Part.LineSegment(V(-54, -30, 0), V(-51, -39, 0)), False)
sketch3.addGeometry(Part.LineSegment(V(-51, -39, 0), V(-22, -39, 0)), False)
sketch3.addGeometry(Part.LineSegment(V(-22, -39, 0), V(-19, -30, 0)), False)
sketch3.addGeometry(Part.LineSegment(V(22, -56, 0), V(19, -64, 0)), False)
sketch3.addGeometry(Part.LineSegment(V(19, -64, 0), V(54, -64, 0)), False)
sketch3.addGeometry(Part.LineSegment(V(54, -64, 0), V(51, -56, 0)), False)
sketch3.addGeometry(Part.LineSegment(V(51, -56, 0), V(22, -56, 0)), False)
sketch3.addGeometry(Part.LineSegment(V(-17, -56, 0), V(-14, -64, 0)), False)
sketch3.addGeometry(Part.LineSegment(V(-14, -64, 0), V(14, -64, 0)), False)
sketch3.addGeometry(Part.LineSegment(V(14, -64, 0), V(17, -56, 0)), False)
sketch3.addGeometry(Part.LineSegment(V(17, -56, 0), V(-17, -56, 0)), False)
sketch3.addGeometry(Part.LineSegment(V(-51, -56, 0), V(-54, -64, 0)), False)
sketch3.addGeometry(Part.LineSegment(V(-54, -64, 0), V(-19, -64, 0)), False)
sketch3.addGeometry(Part.LineSegment(V(-19, -64, 0), V(-22, -56, 0)), False)
sketch3.addGeometry(Part.LineSegment(V(-22, -56, 0), V(-51, -56, 0)), False)
sketch3.addGeometry(Part.LineSegment(V(-80, -43, 0), V(-80, -52, 0)), False)
sketch3.addGeometry(Part.LineSegment(V(-80, -52, 0), V(-58, -52, 0)), False)
sketch3.addGeometry(Part.LineSegment(V(-58, -52, 0), V(-58, -43, 0)), False)
sketch3.addGeometry(Part.LineSegment(V(-58, -43, 0), V(-80, -43, 0)), False)
sketch3.addGeometry(Part.LineSegment(V(58, -43, 0), V(58, -52, 0)), False)
sketch3.addGeometry(Part.LineSegment(V(58, -52, 0), V(80, -52, 0)), False)
sketch3.addGeometry(Part.LineSegment(V(80, -52, 0), V(80, -43, 0)), False)
sketch3.addGeometry(Part.LineSegment(V(80, -43, 0), V(58, -43, 0)), False)
sketch3.addConstraint(Sketcher.Constraint("Coincident", 0, 2, 1, 1))
sketch3.addConstraint(Sketcher.Constraint("Coincident", 1, 2, 2, 1))
sketch3.addConstraint(Sketcher.Constraint("Coincident", 2, 2, 3, 1))
sketch3.addConstraint(Sketcher.Constraint("Coincident", 3, 2, 0, 1))
sketch3.addConstraint(Sketcher.Constraint("Coincident", 4, 2, 5, 1))
sketch3.addConstraint(Sketcher.Constraint("Coincident", 5, 2, 6, 1))
sketch3.addConstraint(Sketcher.Constraint("Coincident", 6, 2, 7, 1))
sketch3.addConstraint(Sketcher.Constraint("Coincident", 7, 2, 4, 1))
sketch3.addConstraint(Sketcher.Constraint("Coincident", 8, 2, 9, 1))
sketch3.addConstraint(Sketcher.Constraint("Coincident", 9, 2, 10, 1))
sketch3.addConstraint(Sketcher.Constraint("Coincident", 10, 2, 11, 1))
sketch3.addConstraint(Sketcher.Constraint("Coincident", 11, 2, 8, 1))
sketch3.addConstraint(Sketcher.Constraint("Coincident", 12, 2, 13, 1))
sketch3.addConstraint(Sketcher.Constraint("Coincident", 13, 2, 14, 1))
sketch3.addConstraint(Sketcher.Constraint("Coincident", 14, 2, 15, 1))
sketch3.addConstraint(Sketcher.Constraint("Coincident", 15, 2, 12, 1))
sketch3.addConstraint(Sketcher.Constraint("Coincident", 16, 2, 17, 1))
sketch3.addConstraint(Sketcher.Constraint("Coincident", 17, 2, 18, 1))
sketch3.addConstraint(Sketcher.Constraint("Coincident", 18, 2, 19, 1))
sketch3.addConstraint(Sketcher.Constraint("Coincident", 19, 2, 16, 1))
sketch3.addConstraint(Sketcher.Constraint("Coincident", 20, 2, 21, 1))
sketch3.addConstraint(Sketcher.Constraint("Coincident", 21, 2, 22, 1))
sketch3.addConstraint(Sketcher.Constraint("Coincident", 22, 2, 23, 1))
sketch3.addConstraint(Sketcher.Constraint("Coincident", 23, 2, 20, 1))
sketch3.addConstraint(Sketcher.Constraint("Coincident", 24, 2, 25, 1))
sketch3.addConstraint(Sketcher.Constraint("Coincident", 25, 2, 26, 1))
sketch3.addConstraint(Sketcher.Constraint("Coincident", 26, 2, 27, 1))
sketch3.addConstraint(Sketcher.Constraint("Coincident", 27, 2, 24, 1))
sketch3.addConstraint(Sketcher.Constraint("Coincident", 28, 2, 29, 1))
sketch3.addConstraint(Sketcher.Constraint("Coincident", 29, 2, 30, 1))
sketch3.addConstraint(Sketcher.Constraint("Coincident", 30, 2, 31, 1))
sketch3.addConstraint(Sketcher.Constraint("Coincident", 31, 2, 28, 1))
sketch3.addConstraint(Sketcher.Constraint("Coincident", 32, 2, 33, 1))
sketch3.addConstraint(Sketcher.Constraint("Coincident", 33, 2, 34, 1))
sketch3.addConstraint(Sketcher.Constraint("Coincident", 34, 2, 35, 1))
sketch3.addConstraint(Sketcher.Constraint("Coincident", 35, 2, 32, 1))
sketch3.addConstraint(Sketcher.Constraint("Coincident", 36, 2, 37, 1))
sketch3.addConstraint(Sketcher.Constraint("Coincident", 37, 2, 38, 1))
sketch3.addConstraint(Sketcher.Constraint("Coincident", 38, 2, 39, 1))
sketch3.addConstraint(Sketcher.Constraint("Coincident", 39, 2, 36, 1))
sketch3.addConstraint(Sketcher.Constraint("Vertical", 0))
sketch3.addConstraint(Sketcher.Constraint("Horizontal", 1))
sketch3.addConstraint(Sketcher.Constraint("Vertical", 2))
sketch3.addConstraint(Sketcher.Constraint("Horizontal", 3))
sketch3.addConstraint(Sketcher.Constraint("Vertical", 4))
sketch3.addConstraint(Sketcher.Constraint("Horizontal", 5))
sketch3.addConstraint(Sketcher.Constraint("Vertical", 6))
sketch3.addConstraint(Sketcher.Constraint("Horizontal", 7))
sketch3.addConstraint(Sketcher.Constraint("Horizontal", 8))
sketch3.addConstraint(Sketcher.Constraint("Horizontal", 10))
sketch3.addConstraint(Sketcher.Constraint("Horizontal", 12))
sketch3.addConstraint(Sketcher.Constraint("Horizontal", 14))
sketch3.addConstraint(Sketcher.Constraint("Horizontal", 16))
sketch3.addConstraint(Sketcher.Constraint("Horizontal", 18))
sketch3.addConstraint(Sketcher.Constraint("Horizontal", 21))
sketch3.addConstraint(Sketcher.Constraint("Horizontal", 23))
sketch3.addConstraint(Sketcher.Constraint("Horizontal", 25))
sketch3.addConstraint(Sketcher.Constraint("Horizontal", 27))
sketch3.addConstraint(Sketcher.Constraint("Horizontal", 29))
sketch3.addConstraint(Sketcher.Constraint("Horizontal", 31))
sketch3.addConstraint(Sketcher.Constraint("Vertical", 32))
sketch3.addConstraint(Sketcher.Constraint("Horizontal", 33))
sketch3.addConstraint(Sketcher.Constraint("Vertical", 34))
sketch3.addConstraint(Sketcher.Constraint("Horizontal", 35))
sketch3.addConstraint(Sketcher.Constraint("Vertical", 36))
sketch3.addConstraint(Sketcher.Constraint("Horizontal", 37))
sketch3.addConstraint(Sketcher.Constraint("Vertical", 38))
sketch3.addConstraint(Sketcher.Constraint("Horizontal", 39))
sketch3.addConstraint(Sketcher.Constraint("Symmetric", 2, 2, 4, 2, -1, 1))
sketch3.addConstraint(Sketcher.Constraint("Symmetric", 0, 2, 6, 2, -1, 1))
sketch3.addConstraint(Sketcher.Constraint("Symmetric", 13, 2, 16, 2, -2))
sketch3.addConstraint(Sketcher.Constraint("Symmetric", 12, 2, 17, 2, -2))
sketch3.addConstraint(Sketcher.Constraint("Symmetric", 21, 2, 28, 2, -2))
sketch3.addConstraint(Sketcher.Constraint("Symmetric", 23, 2, 30, 2, -2))
sketch3.addConstraint(Sketcher.Constraint("Symmetric", 33, 2, 36, 2, -2))
sketch3.addConstraint(Sketcher.Constraint("Symmetric", 35, 2, 38, 2, -2))
sketch3.addConstraint(Sketcher.Constraint("Parallel", 11, 13))
sketch3.addConstraint(Sketcher.Constraint("Parallel", 9, 15))
sketch3.addConstraint(Sketcher.Constraint("Parallel", 15, 17))
sketch3.addConstraint(Sketcher.Constraint("Parallel", 13, 19))
sketch3.addConstraint(Sketcher.Constraint("Parallel", 19, 20))
sketch3.addConstraint(Sketcher.Constraint("Parallel", 17, 22))
sketch3.addConstraint(Sketcher.Constraint("Parallel", 22, 24))
sketch3.addConstraint(Sketcher.Constraint("Parallel", 20, 26))
sketch3.addConstraint(Sketcher.Constraint("Parallel", 26, 28))
sketch3.addConstraint(Sketcher.Constraint("Parallel", 24, 30))
sketch3.addConstraint(Sketcher.Constraint("Horizontal", 1, 2, 4, 2))
sketch3.addConstraint(Sketcher.Constraint("Horizontal", 11, 2, 12, 2))
sketch3.addConstraint(Sketcher.Constraint("Horizontal", 10, 2, 13, 2))
sketch3.addConstraint(Sketcher.Constraint("Horizontal", 21, 2, 24, 2))
sketch3.addConstraint(Sketcher.Constraint("Horizontal", 23, 2, 26, 2))
sketch3.addConstraint(Sketcher.Constraint("Vertical", 14, 2, 20, 2))
sketch3.addConstraint(Sketcher.Constraint("Vertical", 13, 2, 21, 2))
sketch3.addConstraint(Sketcher.Constraint("Vertical", 12, 2, 22, 2))
sketch3.addConstraint(Sketcher.Constraint("Vertical", 10, 2, 24, 2))
sketch3.addConstraint(Sketcher.Constraint("Vertical", 9, 2, 25, 2))
sketch3.addConstraint(Sketcher.Constraint("Vertical", 19, 2, 29, 2))
sketch3.addConstraint(Sketcher.Constraint("Equal", 10, 12))
sketch3.addConstraint(Sketcher.Constraint("Equal", 7, 33))
sketch3.addConstraint(Sketcher.Constraint("Equal", 6, 32))
sketch3.addConstraint(Sketcher.Constraint("DistanceY", 0, 2, 0, 1, 9.0))
sketch3.addConstraint(Sketcher.Constraint("DistanceX", 1, 1, 1, 2, 21.5))
sketch3.addConstraint(Sketcher.Constraint("DistanceY", 8, 2, -1, 1, 39.0))
sketch3.addConstraint(Sketcher.Constraint("DistanceY", 9, 2, -1, 1, 30.0))
sketch3.addConstraint(Sketcher.Constraint("DistanceX", 32, 2, -1, 1, 80.0))
sketch3.addConstraint(Sketcher.Constraint("DistanceX", 0, 2, 4, 2, 49.0))
sketch3.addConstraint(Sketcher.Constraint("DistanceX", 9, 2, 8, 2, 3.0))
sketch3.addConstraint(Sketcher.Constraint("DistanceY", 20, 2, -1, 1, 64.5))
sketch3.addConstraint(Sketcher.Constraint("DistanceY", 32, 2, -1, 1, 51.75))
sketch3.addConstraint(Sketcher.Constraint("DistanceX", 8, 1, 8, 2, 34.945907))
sketch3.addConstraint(Sketcher.Constraint("DistanceX", -1, 1, 12, 2, 50.635231))
sketch3.addConstraint(Sketcher.Constraint("DistanceX", 9, 2, 14, 2, 4.21637))
sketch3.setExpression("Constraints[100]", "Params.sketch3_height")
sketch3.setExpression("Constraints[101]", "Params.sketch3_width")
pad3 = doc.addObject("PartDesign::Pad", "Pad002")
body.addObject(pad3)
pad3.Profile = sketch3
pad3.setExpression("Length", "Params.pad3_length")
doc.recompute()

chamfer = doc.addObject("PartDesign::Chamfer", "Chamfer")
body.addObject(chamfer)
chamfer.Base = (pad3, edges_at(pad3, [
    (-36.162, -45.75, 0),
    (-22.371, -42.625, 0),
    (-36.162, -23.25, 0),
    (-55.371, -26.375, 0),
    (36.162, -48.75, 0),
    (22.371, -51.875, 0),
    (36.162, -71.25, 0),
    (55.371, -68.125, 0),
    (-16.954, -68.125, 0),
    (-36.162, -48.75, 0),
    (-49.954, -51.875, 0),
    (-36.162, -71.25, 0),
    (0, 23.3, 0),
    (13.792, -68.125, 0),
    (0, -48.75, 0),
    (-19.208, -51.875, 0),
    (0, -71.25, 0),
    (26.218, 19.106, 0),
    (38.8, -2.669, 0),
    (47.762, -20.25, 0),
    (-58, -59.875, 0),
    (-69.25, -30.75, 0),
    (70.112, -24.713, 0),
    (-80.5, -38.375, 0),
    (-69.25, -63.75, 0),
    (83.5, -47.25, 0),
    (70.112, -69.787, 0),
    (0, -74.25, 0),
    (69.25, -30.75, 0),
    (58, -34.625, 0),
    (69.25, -63.75, 0),
    (80.5, -56.125, 0),
    (-70.112, -69.787, 0),
    (-83.5, -47.25, 0),
    (-70.112, -24.713, 0),
    (-47.762, -20.25, 0),
    (-38.8, -2.669, 0),
    (-26.218, 19.106, 0),
    (-13.3, 12.625, 0),
    (-35.8, -8.875, 0),
    (-24.55, 5, 0),
    (-24.55, -5, 0),
    (-49.954, -42.625, 0),
    (-16.954, -26.375, 0),
    (-36.162, -29.5, 0),
    (-36.162, -39.5, 0),
    (13.792, -26.375, 0),
    (-19.208, -42.625, 0),
    (0, -29.5, 0),
    (0, -39.5, 0),
    (55.371, -26.375, 0),
    (22.371, -42.625, 0),
    (36.162, -29.5, 0),
    (36.162, -39.5, 0),
    (49.954, -51.875, 0),
    (16.954, -68.125, 0),
    (36.162, -55, 0),
    (36.162, -65, 0),
    (-13.792, -68.125, 0),
    (19.208, -51.875, 0),
    (0, -65, 0),
    (0, -55, 0),
    (-55.371, -68.125, 0),
    (-22.371, -51.875, 0),
    (-36.162, -55, 0),
    (-36.162, -65, 0),
    (35.8, 8.875, 0),
    (13.3, -12.625, 0),
    (24.55, -5, 0),
    (24.55, 5, 0),
    (-80.5, -56.125, 0),
    (-58, -34.625, 0),
    (-69.25, -52.25, 0),
    (-69.25, -42.25, 0),
    (80.5, -38.375, 0),
    (58, -59.875, 0),
    (69.25, -42.25, 0),
    (69.25, -52.25, 0),
    (24.5, 4.5, 3.75),
    (13.75, 0, 3.75),
    (24.5, -4.5, 3.75),
    (35.25, 0, 3.75),
    (-13.75, 0, 3.75),
    (-24.5, 4.5, 3.75),
    (-35.25, 0, 3.75),
    (-24.5, -4.5, 3.75),
    (36.162, -64.5, 3.75),
    (52.135, -60, 3.75),
    (36.162, -55.5, 3.75),
    (20.189, -60, 3.75),
    (10.3, 0, 0),
    (0, -64.5, 3.75),
    (15.973, -60, 3.75),
    (0, -55.5, 3.75),
    (-15.973, -60, 3.75),
    (0, 10.3, 0),
    (-10.3, 0, 0),
    (0, -10.3, 0),
    (-36.162, -55.5, 3.75),
    (-52.135, -60, 3.75),
    (-36.162, -64.5, 3.75),
    (-20.189, -60, 3.75),
    (-52.135, -34.5, 3.75),
    (-36.162, -39, 3.75),
    (-20.189, -34.5, 3.75),
    (-36.162, -30, 3.75),
    (-15.973, -34.5, 3.75),
    (0, -39, 3.75),
    (15.973, -34.5, 3.75),
    (0, -30, 3.75),
    (20.189, -34.5, 3.75),
    (36.162, -39, 3.75),
    (52.135, -34.5, 3.75),
    (36.162, -30, 3.75),
    (69.25, -42.75, 3.75),
    (58.5, -47.25, 3.75),
    (69.25, -51.75, 3.75),
    (80, -47.25, 3.75),
    (-58.5, -47.25, 3.75),
    (-69.25, -42.75, 3.75),
    (-80, -47.25, 3.75),
    (-69.25, -51.75, 3.75),
    (-24.55, 16.5, 0),
    (-35.8, 8.875, 0),
    (-24.55, -16.5, 0),
    (-13.3, -12.625, 0),
    (13.3, 12.625, 0),
    (24.55, -16.5, 0),
    (35.8, -8.875, 0),
    (24.55, 16.5, 0),
    (-13.792, -26.375, 0),
    (0, -45.75, 0),
    (19.208, -42.625, 0),
    (0, -23.25, 0),
    (36.162, -23.25, 0),
    (16.954, -26.375, 0),
    (36.162, -45.75, 0),
    (49.954, -42.625, 0),
]))
chamfer.setExpression("Size", "Params.chamfer_size")

doc.recompute()
